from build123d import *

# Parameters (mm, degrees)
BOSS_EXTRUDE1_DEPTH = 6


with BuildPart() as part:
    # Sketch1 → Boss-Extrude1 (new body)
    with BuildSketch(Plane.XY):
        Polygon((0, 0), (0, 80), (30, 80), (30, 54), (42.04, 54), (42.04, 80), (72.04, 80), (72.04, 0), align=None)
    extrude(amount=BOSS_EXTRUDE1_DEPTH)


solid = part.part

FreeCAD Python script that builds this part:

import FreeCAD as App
import Part
import Sketcher

V = App.Vector

doc = App.newDocument("Part")
body = doc.addObject("PartDesign::Body", "Body")

sketch1 = doc.addObject("Sketcher::SketchObject", "Sketch")
body.addObject(sketch1)
sketch1.AttachmentSupport = (doc.XY_Plane, [""])
sketch1.MapMode = "FlatFace"
sketch1.addGeometry(Part.LineSegment(V(0, 80, 0), V(0, 0, 0)), False)
sketch1.addGeometry(Part.LineSegment(V(0, 0, 0), V(72.04, 0, 0)), False)
sketch1.addGeometry(Part.LineSegment(V(72.04, 0, 0), V(72.04, 80, 0)), False)
sketch1.addGeometry(Part.LineSegment(V(72.04, 80, 0), V(42.04, 80, 0)), False)
sketch1.addGeometry(Part.LineSegment(V(42.04, 80, 0), V(42.04, 54, 0)), False)
sketch1.addGeometry(Part.LineSegment(V(42.04, 54, 0), V(30, 54, 0)), False)
sketch1.addGeometry(Part.LineSegment(V(30, 54, 0), V(30, 80, 0)), False)
sketch1.addGeometry(Part.LineSegment(V(30, 80, 0), V(0, 80, 0)), False)
sketch1.addConstraint(Sketcher.Constraint("Coincident", 0, 2, 1, 1))
sketch1.addConstraint(Sketcher.Constraint("Coincident", 1, 2, 2, 1))
sketch1.addConstraint(Sketcher.Constraint("Coincident", 2, 2, 3, 1))
sketch1.addConstraint(Sketcher.Constraint("Coincident", 3, 2, 4, 1))
sketch1.addConstraint(Sketcher.Constraint("Coincident", 4, 2, 5, 1))
sketch1.addConstraint(Sketcher.Constraint("Coincident", 5, 2, 6, 1))
sketch1.addConstraint(Sketcher.Constraint("Coincident", 6, 2, 7, 1))
sketch1.addConstraint(Sketcher.Constraint("Coincident", 7, 2, 0, 1))
sketch1.addConstraint(Sketcher.Constraint("Vertical", 0))
sketch1.addConstraint(Sketcher.Constraint("Horizontal", 1))
sketch1.addConstraint(Sketcher.Constraint("Vertical", 2))
sketch1.addConstraint(Sketcher.Constraint("Horizontal", 3))
sketch1.addConstraint(Sketcher.Constraint("Vertical", 4))
sketch1.addConstraint(Sketcher.Constraint("Horizontal", 5))
sketch1.addConstraint(Sketcher.Constraint("Vertical", 6))
sketch1.addConstraint(Sketcher.Constraint("Horizontal", 7))
sketch1.addConstraint(Sketcher.Constraint("Coincident", 0, 2, -1, 1))
sketch1.addConstraint(Sketcher.Constraint("Horizontal", 3, 2, 6, 2))
sketch1.addConstraint(Sketcher.Constraint("Equal", 3, 7))
sketch1.addConstraint(Sketcher.Constraint("DistanceX", 3, 2, 3, 1, 30.0))
sketch1.addConstraint(Sketcher.Constraint("DistanceY", 0, 2, 0, 1, 80.0))
sketch1.addConstraint(Sketcher.Constraint("DistanceY", 4, 2, 4, 1, 26.0))
sketch1.addConstraint(Sketcher.Constraint("DistanceX", 1, 1, 1, 2, 72.04))
pad1 = doc.addObject("PartDesign::Pad", "Pad")
body.addObject(pad1)
pad1.Profile = sketch1
pad1.Length = 6

doc.recompute()
